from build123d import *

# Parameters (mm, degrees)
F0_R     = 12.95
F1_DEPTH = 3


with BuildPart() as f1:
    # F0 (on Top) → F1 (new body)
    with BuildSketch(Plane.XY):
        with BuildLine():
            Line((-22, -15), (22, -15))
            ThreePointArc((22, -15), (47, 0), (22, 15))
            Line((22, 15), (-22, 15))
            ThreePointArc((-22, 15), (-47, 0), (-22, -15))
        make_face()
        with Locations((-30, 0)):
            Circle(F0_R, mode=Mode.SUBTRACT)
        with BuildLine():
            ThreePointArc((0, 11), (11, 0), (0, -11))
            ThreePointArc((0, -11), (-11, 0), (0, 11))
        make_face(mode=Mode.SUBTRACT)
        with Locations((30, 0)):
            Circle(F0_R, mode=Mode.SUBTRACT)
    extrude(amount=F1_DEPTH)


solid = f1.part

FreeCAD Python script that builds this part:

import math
import FreeCAD as App
import Part
import Sketcher

V = App.Vector

doc = App.newDocument("Part")
body = doc.addObject("PartDesign::Body", "Body")

# Sketch on XY plane
sketch1 = body.newObject("Sketcher::SketchObject", "Sketch")
sketch1.AttachmentSupport = (doc.getObject("XY_Plane"), [""])
sketch1.MapMode = "FlatFace"
sketch1.addGeometry(Part.LineSegment(V(-22, -15, 0), V(22, -15, 0)), False)
sketch1.addGeometry(Part.ArcOfCircle(Part.Circle(V(30, 0, 0), V(0, 0, 1), 17), math.radians(-118.072487), math.radians(118.072487)), False)
sketch1.addGeometry(Part.LineSegment(V(22, 15, 0), V(-22, 15, 0)), False)
sketch1.addGeometry(Part.ArcOfCircle(Part.Circle(V(-30, 0, 0), V(0, 0, 1), 17), math.radians(61.927513), math.radians(298.072487)), False)
sketch1.addGeometry(Part.Circle(V(-30, 0, 0), V(0, 0, 1), 12.95), False)
sketch1.addGeometry(Part.Circle(V(0, 0, 0), V(0, 0, 1), 11), False)
sketch1.addGeometry(Part.Circle(V(30, 0, 0), V(0, 0, 1), 12.95), False)
sketch1.addConstraint(Sketcher.Constraint("Coincident", 0, 2, 1, 1))
sketch1.addConstraint(Sketcher.Constraint("Coincident", 1, 2, 2, 1))
sketch1.addConstraint(Sketcher.Constraint("Coincident", 2, 2, 3, 1))
sketch1.addConstraint(Sketcher.Constraint("Coincident", 3, 2, 0, 1))
sketch1.addConstraint(Sketcher.Constraint("Horizontal", 0))
sketch1.addConstraint(Sketcher.Constraint("Horizontal", 2))
sketch1.addConstraint(Sketcher.Constraint("Coincident", 5, 3, -1, 1))
sketch1.addConstraint(Sketcher.Constraint("Coincident", 4, 3, 3, 3))
sketch1.addConstraint(Sketcher.Constraint("Coincident", 6, 3, 1, 3))
sketch1.addConstraint(Sketcher.Constraint("Equal", 1, 3))
sketch1.addConstraint(Sketcher.Constraint("Equal", 4, 6))
sketch1.addConstraint(Sketcher.Constraint("Symmetric", 1, 3, 3, 3, -1, 1))
sketch1.addConstraint(Sketcher.Constraint("Symmetric", 0, 2, 1, 2, -1))
sketch1.addConstraint(Sketcher.Constraint("Diameter", 5, 22.0))
sketch1.addConstraint(Sketcher.Constraint("Radius", 1, 17.0))
sketch1.addConstraint(Sketcher.Constraint("Diameter", 4, 25.9))
sketch1.addConstraint(Sketcher.Constraint("DistanceX", 0, 1, 0, 2, 44.0))
sketch1.addConstraint(Sketcher.Constraint("DistanceX", -1, 1, 1, 3, 30.0))
pad1 = body.newObject("PartDesign::Pad", "Pad")
pad1.Profile = sketch1
pad1.Length = 3

doc.recompute()
